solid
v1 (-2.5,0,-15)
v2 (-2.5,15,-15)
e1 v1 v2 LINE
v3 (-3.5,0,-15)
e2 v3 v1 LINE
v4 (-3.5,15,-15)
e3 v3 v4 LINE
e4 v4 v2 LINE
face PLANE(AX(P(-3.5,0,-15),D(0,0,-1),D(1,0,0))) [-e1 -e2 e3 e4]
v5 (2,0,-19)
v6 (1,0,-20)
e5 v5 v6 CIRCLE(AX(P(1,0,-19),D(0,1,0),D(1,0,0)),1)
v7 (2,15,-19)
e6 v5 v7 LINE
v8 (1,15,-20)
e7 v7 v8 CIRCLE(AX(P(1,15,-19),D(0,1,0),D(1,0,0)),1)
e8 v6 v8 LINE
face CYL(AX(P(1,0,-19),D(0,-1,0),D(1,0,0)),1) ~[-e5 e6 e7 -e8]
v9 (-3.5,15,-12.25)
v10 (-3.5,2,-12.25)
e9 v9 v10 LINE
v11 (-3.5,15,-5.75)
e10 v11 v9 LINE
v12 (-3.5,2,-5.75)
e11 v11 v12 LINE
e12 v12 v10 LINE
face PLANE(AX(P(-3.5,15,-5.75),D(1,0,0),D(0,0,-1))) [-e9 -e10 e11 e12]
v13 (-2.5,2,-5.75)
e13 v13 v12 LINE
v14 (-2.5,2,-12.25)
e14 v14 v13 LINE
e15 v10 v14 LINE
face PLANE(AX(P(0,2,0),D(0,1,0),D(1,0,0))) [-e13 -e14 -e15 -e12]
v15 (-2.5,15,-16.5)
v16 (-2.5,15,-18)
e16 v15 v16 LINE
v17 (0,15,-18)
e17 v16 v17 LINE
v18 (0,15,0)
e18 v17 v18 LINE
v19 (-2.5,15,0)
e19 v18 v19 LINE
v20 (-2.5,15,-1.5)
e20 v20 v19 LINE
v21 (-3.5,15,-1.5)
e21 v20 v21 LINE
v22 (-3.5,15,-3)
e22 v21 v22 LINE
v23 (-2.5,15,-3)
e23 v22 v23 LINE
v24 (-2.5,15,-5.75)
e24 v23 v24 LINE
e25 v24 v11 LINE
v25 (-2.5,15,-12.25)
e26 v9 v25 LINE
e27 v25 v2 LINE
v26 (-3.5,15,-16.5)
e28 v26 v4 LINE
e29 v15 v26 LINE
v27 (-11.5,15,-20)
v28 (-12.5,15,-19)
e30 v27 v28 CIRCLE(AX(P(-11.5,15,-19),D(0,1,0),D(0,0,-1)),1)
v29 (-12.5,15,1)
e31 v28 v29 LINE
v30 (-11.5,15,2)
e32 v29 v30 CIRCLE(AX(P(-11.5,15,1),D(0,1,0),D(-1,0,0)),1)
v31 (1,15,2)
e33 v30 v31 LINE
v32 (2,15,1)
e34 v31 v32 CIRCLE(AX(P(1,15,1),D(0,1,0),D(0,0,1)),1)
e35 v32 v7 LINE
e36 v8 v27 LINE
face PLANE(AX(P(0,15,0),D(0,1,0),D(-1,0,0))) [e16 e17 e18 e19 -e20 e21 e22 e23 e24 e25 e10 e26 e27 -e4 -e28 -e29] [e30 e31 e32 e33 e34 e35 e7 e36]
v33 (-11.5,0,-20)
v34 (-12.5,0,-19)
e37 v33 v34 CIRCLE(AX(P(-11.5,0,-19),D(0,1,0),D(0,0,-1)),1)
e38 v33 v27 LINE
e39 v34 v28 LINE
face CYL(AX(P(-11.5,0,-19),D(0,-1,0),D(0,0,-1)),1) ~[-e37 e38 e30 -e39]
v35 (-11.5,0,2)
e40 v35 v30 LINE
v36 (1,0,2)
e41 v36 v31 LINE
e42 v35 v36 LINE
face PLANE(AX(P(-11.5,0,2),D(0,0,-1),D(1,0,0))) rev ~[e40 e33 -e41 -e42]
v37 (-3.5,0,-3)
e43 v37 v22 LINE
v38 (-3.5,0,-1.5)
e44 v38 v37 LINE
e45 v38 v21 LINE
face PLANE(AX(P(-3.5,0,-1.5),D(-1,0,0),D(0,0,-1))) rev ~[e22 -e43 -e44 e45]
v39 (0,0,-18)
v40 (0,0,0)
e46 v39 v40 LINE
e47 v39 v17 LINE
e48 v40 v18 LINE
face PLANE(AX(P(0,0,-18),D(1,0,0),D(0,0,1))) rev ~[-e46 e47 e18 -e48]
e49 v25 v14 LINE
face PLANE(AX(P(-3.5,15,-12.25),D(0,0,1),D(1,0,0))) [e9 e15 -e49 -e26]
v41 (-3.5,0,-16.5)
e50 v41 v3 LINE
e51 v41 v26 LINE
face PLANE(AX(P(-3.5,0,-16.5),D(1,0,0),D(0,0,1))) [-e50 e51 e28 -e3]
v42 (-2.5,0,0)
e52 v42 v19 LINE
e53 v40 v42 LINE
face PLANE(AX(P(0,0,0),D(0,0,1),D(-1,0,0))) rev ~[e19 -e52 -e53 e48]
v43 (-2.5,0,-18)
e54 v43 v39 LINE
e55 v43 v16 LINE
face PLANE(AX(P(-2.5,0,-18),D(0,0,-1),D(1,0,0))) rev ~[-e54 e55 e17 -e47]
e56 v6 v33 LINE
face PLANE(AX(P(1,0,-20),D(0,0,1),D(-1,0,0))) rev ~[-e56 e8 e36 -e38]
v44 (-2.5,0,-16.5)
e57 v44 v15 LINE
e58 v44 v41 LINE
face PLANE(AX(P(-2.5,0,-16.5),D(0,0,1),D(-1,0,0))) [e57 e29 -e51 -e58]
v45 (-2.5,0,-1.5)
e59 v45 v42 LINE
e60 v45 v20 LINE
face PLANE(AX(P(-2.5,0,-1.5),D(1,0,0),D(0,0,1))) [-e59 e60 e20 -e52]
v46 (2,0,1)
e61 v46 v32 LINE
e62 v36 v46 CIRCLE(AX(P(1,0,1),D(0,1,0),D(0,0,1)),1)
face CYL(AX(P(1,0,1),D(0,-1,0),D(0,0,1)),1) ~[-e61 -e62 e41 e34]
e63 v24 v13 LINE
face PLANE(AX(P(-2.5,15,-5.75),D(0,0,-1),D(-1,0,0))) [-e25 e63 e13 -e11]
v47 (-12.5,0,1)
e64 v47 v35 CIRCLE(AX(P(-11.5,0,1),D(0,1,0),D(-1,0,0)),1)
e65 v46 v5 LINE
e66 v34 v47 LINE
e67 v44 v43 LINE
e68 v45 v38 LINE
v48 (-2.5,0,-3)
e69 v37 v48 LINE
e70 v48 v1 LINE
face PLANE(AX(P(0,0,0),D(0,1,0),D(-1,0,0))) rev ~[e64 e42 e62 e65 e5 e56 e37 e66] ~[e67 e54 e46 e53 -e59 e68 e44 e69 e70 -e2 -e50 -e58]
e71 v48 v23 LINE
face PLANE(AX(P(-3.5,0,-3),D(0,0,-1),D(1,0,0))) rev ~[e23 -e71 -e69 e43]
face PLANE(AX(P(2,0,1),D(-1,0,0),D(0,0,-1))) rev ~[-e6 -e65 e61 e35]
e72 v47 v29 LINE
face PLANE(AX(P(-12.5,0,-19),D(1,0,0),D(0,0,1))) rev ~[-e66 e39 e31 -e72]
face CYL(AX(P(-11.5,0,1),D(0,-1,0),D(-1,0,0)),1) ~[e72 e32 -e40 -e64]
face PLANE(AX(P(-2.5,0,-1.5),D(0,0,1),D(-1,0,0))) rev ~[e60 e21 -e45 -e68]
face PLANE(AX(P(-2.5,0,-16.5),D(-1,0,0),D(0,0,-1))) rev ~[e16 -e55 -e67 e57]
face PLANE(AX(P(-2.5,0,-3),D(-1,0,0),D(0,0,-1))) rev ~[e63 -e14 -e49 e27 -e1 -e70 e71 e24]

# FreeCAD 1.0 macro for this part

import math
import FreeCAD as App
import Part
import Sketcher
from FreeCAD import Vector
Q = App.Units.Quantity

doc = App.newDocument("Part")
params = doc.addObject("Spreadsheet::Sheet", "Params")
for row, (alias, value) in enumerate([
    ("sketch1_radius", "1 mm"),
    ("sketch1_width", "1 mm"),
    ("sketch1_height", "18 mm"),
    ("sketch1_width2", "2.5 mm"),
    ("sketch1_height2", "1.5 mm"),
    ("pad1_length", "15 mm"),
    ("sketch2_width", "1 mm"),
    ("sketch2_height", "6.5 mm"),
    ("pocket1_length", "13 mm"),
], start=1):
    params.set(f"A{row}", alias)
    params.set(f"B{row}", "=" + value)
    params.setAlias(f"B{row}", alias)

body = doc.addObject("PartDesign::Body", "Body")

# Sketch on XZ plane
sketch1 = doc.addObject("Sketcher::SketchObject", "Sketch")
body.addObject(sketch1)
sketch1.AttachmentSupport = (doc.XZ_Plane, [""])
sketch1.MapMode = "FlatFace"
sketch1.addGeometry([
    Part.ArcOfCircle(Part.Circle(Vector(-11.5, 1, 0), Vector(0, 0, 1), 1), math.radians(90), math.radians(180)),  # 0
    Part.LineSegment(Vector(-11.5, 2, 0), Vector(1, 2, 0)),  # 1
    Part.ArcOfCircle(Part.Circle(Vector(1, 1, 0), Vector(0, 0, 1), 1), math.radians(0), math.radians(90)),  # 2
    Part.LineSegment(Vector(2, 1, 0), Vector(2, -19, 0)),  # 3
    Part.ArcOfCircle(Part.Circle(Vector(1, -19, 0), Vector(0, 0, 1), 1), math.radians(-90), math.radians(0)),  # 4
    Part.LineSegment(Vector(1, -20, 0), Vector(-11.5, -20, 0)),  # 5
    Part.ArcOfCircle(Part.Circle(Vector(-11.5, -19, 0), Vector(0, 0, 1), 1), math.radians(180), math.radians(270)),  # 6
    Part.LineSegment(Vector(-12.5, -19, 0), Vector(-12.5, 1, 0)),  # 7
    Part.LineSegment(Vector(0, -18, 0), Vector(0, 0, 0)),  # 8
    Part.LineSegment(Vector(0, 0, 0), Vector(-2.5, 0, 0)),  # 9
    Part.LineSegment(Vector(-2.5, 0, 0), Vector(-2.5, -1.5, 0)),  # 10
    Part.LineSegment(Vector(-2.5, -1.5, 0), Vector(-3.5, -1.5, 0)),  # 11
    Part.LineSegment(Vector(-3.5, -1.5, 0), Vector(-3.5, -3, 0)),  # 12
    Part.LineSegment(Vector(-3.5, -3, 0), Vector(-2.5, -3, 0)),  # 13
    Part.LineSegment(Vector(-2.5, -3, 0), Vector(-2.5, -15, 0)),  # 14
    Part.LineSegment(Vector(-2.5, -15, 0), Vector(-3.5, -15, 0)),  # 15
    Part.LineSegment(Vector(-3.5, -15, 0), Vector(-3.5, -16.5, 0)),  # 16
    Part.LineSegment(Vector(-3.5, -16.5, 0), Vector(-2.5, -16.5, 0)),  # 17
    Part.LineSegment(Vector(-2.5, -16.5, 0), Vector(-2.5, -18, 0)),  # 18
    Part.LineSegment(Vector(-2.5, -18, 0), Vector(0, -18, 0)),  # 19
], False)
sketch1.addConstraint([
    Sketcher.Constraint("Tangent", 0, 1, 1, 1),
    Sketcher.Constraint("Tangent", 1, 2, 2, 2),
    Sketcher.Constraint("Tangent", 2, 1, 3, 1),
    Sketcher.Constraint("Tangent", 3, 2, 4, 2),
    Sketcher.Constraint("Tangent", 4, 1, 5, 1),
    Sketcher.Constraint("Tangent", 5, 2, 6, 2),
    Sketcher.Constraint("Tangent", 6, 1, 7, 1),
    Sketcher.Constraint("Tangent", 7, 2, 0, 2),
    Sketcher.Constraint("Coincident", 8, 2, 9, 1),
    Sketcher.Constraint("Coincident", 9, 2, 10, 1),
    Sketcher.Constraint("Coincident", 10, 2, 11, 1),
    Sketcher.Constraint("Coincident", 11, 2, 12, 1),
    Sketcher.Constraint("Coincident", 12, 2, 13, 1),
    Sketcher.Constraint("Coincident", 13, 2, 14, 1),
    Sketcher.Constraint("Coincident", 14, 2, 15, 1),
    Sketcher.Constraint("Coincident", 15, 2, 16, 1),
    Sketcher.Constraint("Coincident", 16, 2, 17, 1),
    Sketcher.Constraint("Coincident", 17, 2, 18, 1),
    Sketcher.Constraint("Coincident", 18, 2, 19, 1),
    Sketcher.Constraint("Coincident", 19, 2, 8, 1),
    Sketcher.Constraint("Horizontal", 1),
    Sketcher.Constraint("Vertical", 3),
    Sketcher.Constraint("Horizontal", 5),
    Sketcher.Constraint("Vertical", 7),
    Sketcher.Constraint("Vertical", 8),
    Sketcher.Constraint("Horizontal", 9),
    Sketcher.Constraint("Vertical", 10),
    Sketcher.Constraint("Horizontal", 11),
    Sketcher.Constraint("Vertical", 12),
    Sketcher.Constraint("Horizontal", 13),
    Sketcher.Constraint("Vertical", 14),
    Sketcher.Constraint("Horizontal", 15),
    Sketcher.Constraint("Vertical", 16),
    Sketcher.Constraint("Horizontal", 17),
    Sketcher.Constraint("Vertical", 18),
    Sketcher.Constraint("Horizontal", 19),
    Sketcher.Constraint("Coincident", 8, 2, -1, 1),
    Sketcher.Constraint("Equal", 0, 2),
    Sketcher.Constraint("Equal", 2, 4),
    Sketcher.Constraint("Equal", 4, 6),
    Sketcher.Constraint("Vertical", 10, 2, 13, 2),
    Sketcher.Constraint("Vertical", 12, 2, 15, 2),
    Sketcher.Constraint("Vertical", 14, 2, 17, 2),
    Sketcher.Constraint("Equal", 10, 12),
    Sketcher.Constraint("Equal", 12, 16),
    Sketcher.Constraint("Equal", 16, 18),
    Sketcher.Constraint("Radius", 0, Q("1 mm")),
    Sketcher.Constraint("DistanceX", 11, 2, 11, 1, Q("1 mm")),
    Sketcher.Constraint("DistanceY", 8, 1, 8, 2, Q("18 mm")),
    Sketcher.Constraint("DistanceX", 9, 2, 9, 1, Q("2.5 mm")),
    Sketcher.Constraint("DistanceY", 10, 2, 10, 1, Q("1.5 mm")),
    Sketcher.Constraint("DistanceY", -1, 1, 0, 3, Q("1 mm")),
    Sketcher.Constraint("DistanceX", -1, 1, 2, 3, Q("1 mm")),
    Sketcher.Constraint("DistanceY", 4, 3, 18, 2, Q("1 mm")),
    Sketcher.Constraint("DistanceX", 1, 1, 1, 2, Q("12.5 mm")),
])
sketch1.setExpression("Constraints[46]", "Params.sketch1_radius")
sketch1.setExpression("Constraints[47]", "Params.sketch1_width")
sketch1.setExpression("Constraints[48]", "Params.sketch1_height")
sketch1.setExpression("Constraints[49]", "Params.sketch1_width2")
sketch1.setExpression("Constraints[50]", "Params.sketch1_height2")
pad1 = doc.addObject("PartDesign::Pad", "Pad")
body.addObject(pad1)
pad1.Profile = sketch1
pad1.setExpression("Length", "Params.pad1_length")
pad1.Reversed = True

# Sketch on XZ plane
sketch2 = doc.addObject("Sketcher::SketchObject", "Sketch001")
body.addObject(sketch2)
sketch2.AttachmentSupport = (doc.XZ_Plane, [""])
sketch2.MapMode = "FlatFace"
sketch2.AttachmentOffset = App.Placement(Vector(0, 0, -15), App.Rotation())
sketch2.addGeometry([
    Part.LineSegment(Vector(-3.5, -5.75, 0), Vector(-2.5, -5.75, 0)),
    Part.LineSegment(Vector(-2.5, -5.75, 0), Vector(-2.5, -12.25, 0)),
    Part.LineSegment(Vector(-2.5, -12.25, 0), Vector(-3.5, -12.25, 0)),
    Part.LineSegment(Vector(-3.5, -12.25, 0), Vector(-3.5, -5.75, 0)),
], False)
sketch2.addConstraint([
    Sketcher.Constraint("Coincident", 0, 2, 1, 1),
    Sketcher.Constraint("Coincident", 1, 2, 2, 1),
    Sketcher.Constraint("Coincident", 2, 2, 3, 1),
    Sketcher.Constraint("Coincident", 3, 2, 0, 1),
    Sketcher.Constraint("Horizontal", 0),
    Sketcher.Constraint("Vertical", 1),
    Sketcher.Constraint("Horizontal", 2),
    Sketcher.Constraint("Vertical", 3),
    Sketcher.Constraint("DistanceX", 0, 1, 0, 2, Q("1 mm")),
    Sketcher.Constraint("DistanceY", 1, 2, 1, 1, Q("6.5 mm")),
    Sketcher.Constraint("DistanceX", 0, 2, -1, 1, Q("2.5 mm")),
    Sketcher.Constraint("DistanceY", 0, 2, -1, 1, Q("5.75 mm")),
])
sketch2.setExpression("Constraints[8]", "Params.sketch2_width")
sketch2.setExpression("Constraints[9]", "Params.sketch2_height")
pocket1 = doc.addObject("PartDesign::Pocket", "Pocket")
body.addObject(pocket1)
pocket1.Profile = sketch2
pocket1.setExpression("Length", "Params.pocket1_length")
pocket1.Reversed = True

doc.recompute()
